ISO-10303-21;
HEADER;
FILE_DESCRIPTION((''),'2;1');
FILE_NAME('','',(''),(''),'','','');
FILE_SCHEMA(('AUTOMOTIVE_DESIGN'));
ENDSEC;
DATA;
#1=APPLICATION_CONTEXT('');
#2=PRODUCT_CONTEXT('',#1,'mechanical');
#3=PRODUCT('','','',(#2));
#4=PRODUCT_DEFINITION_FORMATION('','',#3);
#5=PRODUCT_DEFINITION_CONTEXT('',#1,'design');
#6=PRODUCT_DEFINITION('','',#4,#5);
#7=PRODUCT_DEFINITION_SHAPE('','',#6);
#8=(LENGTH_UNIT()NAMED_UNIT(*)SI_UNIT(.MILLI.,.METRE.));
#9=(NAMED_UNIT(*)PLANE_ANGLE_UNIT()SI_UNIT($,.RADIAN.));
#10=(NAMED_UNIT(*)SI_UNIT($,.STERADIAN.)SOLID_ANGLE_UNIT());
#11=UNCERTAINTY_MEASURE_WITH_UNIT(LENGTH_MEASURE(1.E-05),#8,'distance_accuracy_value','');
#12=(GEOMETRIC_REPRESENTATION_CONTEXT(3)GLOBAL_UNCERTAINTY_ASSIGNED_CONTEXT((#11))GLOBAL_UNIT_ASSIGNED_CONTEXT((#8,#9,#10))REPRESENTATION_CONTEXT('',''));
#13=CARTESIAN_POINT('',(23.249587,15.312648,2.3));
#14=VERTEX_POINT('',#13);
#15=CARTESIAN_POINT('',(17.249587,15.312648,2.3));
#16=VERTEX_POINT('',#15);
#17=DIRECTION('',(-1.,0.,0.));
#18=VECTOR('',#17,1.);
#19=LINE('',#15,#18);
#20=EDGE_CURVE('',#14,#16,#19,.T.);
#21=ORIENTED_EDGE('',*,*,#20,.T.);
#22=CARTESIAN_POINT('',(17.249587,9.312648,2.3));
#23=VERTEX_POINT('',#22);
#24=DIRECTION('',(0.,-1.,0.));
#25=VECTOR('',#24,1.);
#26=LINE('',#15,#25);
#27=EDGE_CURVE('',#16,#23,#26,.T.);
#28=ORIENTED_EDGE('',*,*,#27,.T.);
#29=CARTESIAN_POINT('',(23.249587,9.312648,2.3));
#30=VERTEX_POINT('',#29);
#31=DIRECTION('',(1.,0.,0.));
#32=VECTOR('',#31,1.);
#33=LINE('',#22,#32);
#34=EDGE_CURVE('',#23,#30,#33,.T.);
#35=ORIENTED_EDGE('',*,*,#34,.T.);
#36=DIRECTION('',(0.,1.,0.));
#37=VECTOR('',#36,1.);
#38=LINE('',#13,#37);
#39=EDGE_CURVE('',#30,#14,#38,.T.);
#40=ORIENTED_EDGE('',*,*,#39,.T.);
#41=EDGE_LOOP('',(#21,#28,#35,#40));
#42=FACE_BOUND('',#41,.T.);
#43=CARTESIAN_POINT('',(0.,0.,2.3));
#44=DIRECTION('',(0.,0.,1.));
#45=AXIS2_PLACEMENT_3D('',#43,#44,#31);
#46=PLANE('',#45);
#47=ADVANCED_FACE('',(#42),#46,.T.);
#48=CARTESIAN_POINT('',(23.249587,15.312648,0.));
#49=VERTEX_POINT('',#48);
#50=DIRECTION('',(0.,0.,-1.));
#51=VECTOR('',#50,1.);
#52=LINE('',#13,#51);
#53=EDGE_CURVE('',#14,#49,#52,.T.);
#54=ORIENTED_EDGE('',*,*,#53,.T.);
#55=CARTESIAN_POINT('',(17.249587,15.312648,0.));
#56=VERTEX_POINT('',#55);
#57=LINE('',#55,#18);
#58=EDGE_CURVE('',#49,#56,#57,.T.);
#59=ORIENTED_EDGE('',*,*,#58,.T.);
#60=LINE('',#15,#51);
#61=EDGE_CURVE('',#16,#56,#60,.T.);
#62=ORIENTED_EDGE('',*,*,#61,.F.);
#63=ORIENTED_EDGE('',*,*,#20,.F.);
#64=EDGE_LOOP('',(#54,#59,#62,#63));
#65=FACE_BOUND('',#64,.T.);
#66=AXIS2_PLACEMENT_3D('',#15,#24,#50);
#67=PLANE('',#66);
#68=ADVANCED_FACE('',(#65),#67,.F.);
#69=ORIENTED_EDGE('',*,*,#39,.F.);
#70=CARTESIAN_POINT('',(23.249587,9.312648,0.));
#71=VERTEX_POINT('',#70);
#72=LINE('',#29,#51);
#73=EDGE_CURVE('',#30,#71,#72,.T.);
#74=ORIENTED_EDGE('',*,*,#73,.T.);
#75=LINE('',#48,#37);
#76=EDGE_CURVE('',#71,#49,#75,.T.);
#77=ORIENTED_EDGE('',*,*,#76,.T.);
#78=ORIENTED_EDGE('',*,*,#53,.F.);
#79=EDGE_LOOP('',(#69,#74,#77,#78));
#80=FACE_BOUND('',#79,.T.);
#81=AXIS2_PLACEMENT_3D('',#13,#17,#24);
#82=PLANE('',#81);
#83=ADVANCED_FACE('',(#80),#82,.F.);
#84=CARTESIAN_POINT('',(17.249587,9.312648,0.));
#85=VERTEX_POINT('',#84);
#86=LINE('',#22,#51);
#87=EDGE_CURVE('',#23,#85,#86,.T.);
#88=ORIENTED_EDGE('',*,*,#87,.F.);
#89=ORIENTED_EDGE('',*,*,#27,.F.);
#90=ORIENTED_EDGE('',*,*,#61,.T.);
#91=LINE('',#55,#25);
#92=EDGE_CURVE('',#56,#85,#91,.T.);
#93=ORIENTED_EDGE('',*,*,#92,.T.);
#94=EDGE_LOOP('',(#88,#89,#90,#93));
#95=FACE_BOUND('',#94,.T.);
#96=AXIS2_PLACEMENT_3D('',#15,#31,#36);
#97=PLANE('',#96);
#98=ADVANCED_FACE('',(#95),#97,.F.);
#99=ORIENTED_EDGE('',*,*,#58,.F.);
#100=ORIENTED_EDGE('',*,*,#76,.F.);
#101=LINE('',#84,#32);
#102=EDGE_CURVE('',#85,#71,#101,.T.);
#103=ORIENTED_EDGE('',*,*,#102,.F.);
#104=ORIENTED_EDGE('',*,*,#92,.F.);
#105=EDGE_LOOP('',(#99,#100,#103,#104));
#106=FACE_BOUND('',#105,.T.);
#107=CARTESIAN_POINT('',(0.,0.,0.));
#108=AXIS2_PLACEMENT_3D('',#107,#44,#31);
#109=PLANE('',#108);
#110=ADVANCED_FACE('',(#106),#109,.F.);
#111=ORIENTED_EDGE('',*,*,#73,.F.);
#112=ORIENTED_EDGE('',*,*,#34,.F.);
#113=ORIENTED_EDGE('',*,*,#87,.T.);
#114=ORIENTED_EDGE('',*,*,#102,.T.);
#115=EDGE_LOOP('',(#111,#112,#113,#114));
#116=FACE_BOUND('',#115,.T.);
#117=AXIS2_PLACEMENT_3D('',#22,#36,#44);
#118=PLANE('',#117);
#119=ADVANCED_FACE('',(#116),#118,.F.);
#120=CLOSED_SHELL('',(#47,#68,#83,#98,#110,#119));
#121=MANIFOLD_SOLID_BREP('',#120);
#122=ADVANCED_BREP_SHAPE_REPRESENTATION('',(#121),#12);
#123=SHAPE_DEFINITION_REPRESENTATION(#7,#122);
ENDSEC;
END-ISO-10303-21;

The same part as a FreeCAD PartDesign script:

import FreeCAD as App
import Part
import Sketcher
from FreeCAD import Vector
Q = App.Units.Quantity


def add_polygon(sketch, points):
    """Adds a closed chain of lines whose ends are joined by coincident constraints."""
    first, n = sketch.GeometryCount, len(points)
    for a, b in zip(points, points[1:] + points[:1]):
        sketch.addGeometry(Part.LineSegment(App.Vector(*a, 0), App.Vector(*b, 0)), False)
    for i in range(n):
        sketch.addConstraint(Sketcher.Constraint("Coincident", first + i, 2, first + (i + 1) % n, 1))

doc = App.newDocument("Part")
body = doc.addObject("PartDesign::Body", "Body")

# Sketch on XY plane
sketch1 = body.newObject("Sketcher::SketchObject", "Sketch")
sketch1.AttachmentSupport = (doc.getObject("XY_Plane"), [""])
sketch1.MapMode = "FlatFace"
add_polygon(sketch1, [(17, 15), (17, 9), (23, 9), (23, 15)])  # lines 0-3
sketch1.addConstraint([
    Sketcher.Constraint("Vertical", 0),
    Sketcher.Constraint("Horizontal", 1),
    Sketcher.Constraint("Vertical", 2),
    Sketcher.Constraint("Horizontal", 3),
    Sketcher.Constraint("Equal", 3, 0),
    Sketcher.Constraint("DistanceX", 1, 1, 1, 2, Q("6 mm")),
    Sketcher.Constraint("DistanceY", -1, 1, 0, 2, Q("9.312648 mm")),
    Sketcher.Constraint("DistanceX", -1, 1, 0, 2, Q("17.249587 mm")),
])
pad1 = body.newObject("PartDesign::Pad", "Pad")
pad1.Profile = sketch1
pad1.Length = 2.3

doc.recompute()
